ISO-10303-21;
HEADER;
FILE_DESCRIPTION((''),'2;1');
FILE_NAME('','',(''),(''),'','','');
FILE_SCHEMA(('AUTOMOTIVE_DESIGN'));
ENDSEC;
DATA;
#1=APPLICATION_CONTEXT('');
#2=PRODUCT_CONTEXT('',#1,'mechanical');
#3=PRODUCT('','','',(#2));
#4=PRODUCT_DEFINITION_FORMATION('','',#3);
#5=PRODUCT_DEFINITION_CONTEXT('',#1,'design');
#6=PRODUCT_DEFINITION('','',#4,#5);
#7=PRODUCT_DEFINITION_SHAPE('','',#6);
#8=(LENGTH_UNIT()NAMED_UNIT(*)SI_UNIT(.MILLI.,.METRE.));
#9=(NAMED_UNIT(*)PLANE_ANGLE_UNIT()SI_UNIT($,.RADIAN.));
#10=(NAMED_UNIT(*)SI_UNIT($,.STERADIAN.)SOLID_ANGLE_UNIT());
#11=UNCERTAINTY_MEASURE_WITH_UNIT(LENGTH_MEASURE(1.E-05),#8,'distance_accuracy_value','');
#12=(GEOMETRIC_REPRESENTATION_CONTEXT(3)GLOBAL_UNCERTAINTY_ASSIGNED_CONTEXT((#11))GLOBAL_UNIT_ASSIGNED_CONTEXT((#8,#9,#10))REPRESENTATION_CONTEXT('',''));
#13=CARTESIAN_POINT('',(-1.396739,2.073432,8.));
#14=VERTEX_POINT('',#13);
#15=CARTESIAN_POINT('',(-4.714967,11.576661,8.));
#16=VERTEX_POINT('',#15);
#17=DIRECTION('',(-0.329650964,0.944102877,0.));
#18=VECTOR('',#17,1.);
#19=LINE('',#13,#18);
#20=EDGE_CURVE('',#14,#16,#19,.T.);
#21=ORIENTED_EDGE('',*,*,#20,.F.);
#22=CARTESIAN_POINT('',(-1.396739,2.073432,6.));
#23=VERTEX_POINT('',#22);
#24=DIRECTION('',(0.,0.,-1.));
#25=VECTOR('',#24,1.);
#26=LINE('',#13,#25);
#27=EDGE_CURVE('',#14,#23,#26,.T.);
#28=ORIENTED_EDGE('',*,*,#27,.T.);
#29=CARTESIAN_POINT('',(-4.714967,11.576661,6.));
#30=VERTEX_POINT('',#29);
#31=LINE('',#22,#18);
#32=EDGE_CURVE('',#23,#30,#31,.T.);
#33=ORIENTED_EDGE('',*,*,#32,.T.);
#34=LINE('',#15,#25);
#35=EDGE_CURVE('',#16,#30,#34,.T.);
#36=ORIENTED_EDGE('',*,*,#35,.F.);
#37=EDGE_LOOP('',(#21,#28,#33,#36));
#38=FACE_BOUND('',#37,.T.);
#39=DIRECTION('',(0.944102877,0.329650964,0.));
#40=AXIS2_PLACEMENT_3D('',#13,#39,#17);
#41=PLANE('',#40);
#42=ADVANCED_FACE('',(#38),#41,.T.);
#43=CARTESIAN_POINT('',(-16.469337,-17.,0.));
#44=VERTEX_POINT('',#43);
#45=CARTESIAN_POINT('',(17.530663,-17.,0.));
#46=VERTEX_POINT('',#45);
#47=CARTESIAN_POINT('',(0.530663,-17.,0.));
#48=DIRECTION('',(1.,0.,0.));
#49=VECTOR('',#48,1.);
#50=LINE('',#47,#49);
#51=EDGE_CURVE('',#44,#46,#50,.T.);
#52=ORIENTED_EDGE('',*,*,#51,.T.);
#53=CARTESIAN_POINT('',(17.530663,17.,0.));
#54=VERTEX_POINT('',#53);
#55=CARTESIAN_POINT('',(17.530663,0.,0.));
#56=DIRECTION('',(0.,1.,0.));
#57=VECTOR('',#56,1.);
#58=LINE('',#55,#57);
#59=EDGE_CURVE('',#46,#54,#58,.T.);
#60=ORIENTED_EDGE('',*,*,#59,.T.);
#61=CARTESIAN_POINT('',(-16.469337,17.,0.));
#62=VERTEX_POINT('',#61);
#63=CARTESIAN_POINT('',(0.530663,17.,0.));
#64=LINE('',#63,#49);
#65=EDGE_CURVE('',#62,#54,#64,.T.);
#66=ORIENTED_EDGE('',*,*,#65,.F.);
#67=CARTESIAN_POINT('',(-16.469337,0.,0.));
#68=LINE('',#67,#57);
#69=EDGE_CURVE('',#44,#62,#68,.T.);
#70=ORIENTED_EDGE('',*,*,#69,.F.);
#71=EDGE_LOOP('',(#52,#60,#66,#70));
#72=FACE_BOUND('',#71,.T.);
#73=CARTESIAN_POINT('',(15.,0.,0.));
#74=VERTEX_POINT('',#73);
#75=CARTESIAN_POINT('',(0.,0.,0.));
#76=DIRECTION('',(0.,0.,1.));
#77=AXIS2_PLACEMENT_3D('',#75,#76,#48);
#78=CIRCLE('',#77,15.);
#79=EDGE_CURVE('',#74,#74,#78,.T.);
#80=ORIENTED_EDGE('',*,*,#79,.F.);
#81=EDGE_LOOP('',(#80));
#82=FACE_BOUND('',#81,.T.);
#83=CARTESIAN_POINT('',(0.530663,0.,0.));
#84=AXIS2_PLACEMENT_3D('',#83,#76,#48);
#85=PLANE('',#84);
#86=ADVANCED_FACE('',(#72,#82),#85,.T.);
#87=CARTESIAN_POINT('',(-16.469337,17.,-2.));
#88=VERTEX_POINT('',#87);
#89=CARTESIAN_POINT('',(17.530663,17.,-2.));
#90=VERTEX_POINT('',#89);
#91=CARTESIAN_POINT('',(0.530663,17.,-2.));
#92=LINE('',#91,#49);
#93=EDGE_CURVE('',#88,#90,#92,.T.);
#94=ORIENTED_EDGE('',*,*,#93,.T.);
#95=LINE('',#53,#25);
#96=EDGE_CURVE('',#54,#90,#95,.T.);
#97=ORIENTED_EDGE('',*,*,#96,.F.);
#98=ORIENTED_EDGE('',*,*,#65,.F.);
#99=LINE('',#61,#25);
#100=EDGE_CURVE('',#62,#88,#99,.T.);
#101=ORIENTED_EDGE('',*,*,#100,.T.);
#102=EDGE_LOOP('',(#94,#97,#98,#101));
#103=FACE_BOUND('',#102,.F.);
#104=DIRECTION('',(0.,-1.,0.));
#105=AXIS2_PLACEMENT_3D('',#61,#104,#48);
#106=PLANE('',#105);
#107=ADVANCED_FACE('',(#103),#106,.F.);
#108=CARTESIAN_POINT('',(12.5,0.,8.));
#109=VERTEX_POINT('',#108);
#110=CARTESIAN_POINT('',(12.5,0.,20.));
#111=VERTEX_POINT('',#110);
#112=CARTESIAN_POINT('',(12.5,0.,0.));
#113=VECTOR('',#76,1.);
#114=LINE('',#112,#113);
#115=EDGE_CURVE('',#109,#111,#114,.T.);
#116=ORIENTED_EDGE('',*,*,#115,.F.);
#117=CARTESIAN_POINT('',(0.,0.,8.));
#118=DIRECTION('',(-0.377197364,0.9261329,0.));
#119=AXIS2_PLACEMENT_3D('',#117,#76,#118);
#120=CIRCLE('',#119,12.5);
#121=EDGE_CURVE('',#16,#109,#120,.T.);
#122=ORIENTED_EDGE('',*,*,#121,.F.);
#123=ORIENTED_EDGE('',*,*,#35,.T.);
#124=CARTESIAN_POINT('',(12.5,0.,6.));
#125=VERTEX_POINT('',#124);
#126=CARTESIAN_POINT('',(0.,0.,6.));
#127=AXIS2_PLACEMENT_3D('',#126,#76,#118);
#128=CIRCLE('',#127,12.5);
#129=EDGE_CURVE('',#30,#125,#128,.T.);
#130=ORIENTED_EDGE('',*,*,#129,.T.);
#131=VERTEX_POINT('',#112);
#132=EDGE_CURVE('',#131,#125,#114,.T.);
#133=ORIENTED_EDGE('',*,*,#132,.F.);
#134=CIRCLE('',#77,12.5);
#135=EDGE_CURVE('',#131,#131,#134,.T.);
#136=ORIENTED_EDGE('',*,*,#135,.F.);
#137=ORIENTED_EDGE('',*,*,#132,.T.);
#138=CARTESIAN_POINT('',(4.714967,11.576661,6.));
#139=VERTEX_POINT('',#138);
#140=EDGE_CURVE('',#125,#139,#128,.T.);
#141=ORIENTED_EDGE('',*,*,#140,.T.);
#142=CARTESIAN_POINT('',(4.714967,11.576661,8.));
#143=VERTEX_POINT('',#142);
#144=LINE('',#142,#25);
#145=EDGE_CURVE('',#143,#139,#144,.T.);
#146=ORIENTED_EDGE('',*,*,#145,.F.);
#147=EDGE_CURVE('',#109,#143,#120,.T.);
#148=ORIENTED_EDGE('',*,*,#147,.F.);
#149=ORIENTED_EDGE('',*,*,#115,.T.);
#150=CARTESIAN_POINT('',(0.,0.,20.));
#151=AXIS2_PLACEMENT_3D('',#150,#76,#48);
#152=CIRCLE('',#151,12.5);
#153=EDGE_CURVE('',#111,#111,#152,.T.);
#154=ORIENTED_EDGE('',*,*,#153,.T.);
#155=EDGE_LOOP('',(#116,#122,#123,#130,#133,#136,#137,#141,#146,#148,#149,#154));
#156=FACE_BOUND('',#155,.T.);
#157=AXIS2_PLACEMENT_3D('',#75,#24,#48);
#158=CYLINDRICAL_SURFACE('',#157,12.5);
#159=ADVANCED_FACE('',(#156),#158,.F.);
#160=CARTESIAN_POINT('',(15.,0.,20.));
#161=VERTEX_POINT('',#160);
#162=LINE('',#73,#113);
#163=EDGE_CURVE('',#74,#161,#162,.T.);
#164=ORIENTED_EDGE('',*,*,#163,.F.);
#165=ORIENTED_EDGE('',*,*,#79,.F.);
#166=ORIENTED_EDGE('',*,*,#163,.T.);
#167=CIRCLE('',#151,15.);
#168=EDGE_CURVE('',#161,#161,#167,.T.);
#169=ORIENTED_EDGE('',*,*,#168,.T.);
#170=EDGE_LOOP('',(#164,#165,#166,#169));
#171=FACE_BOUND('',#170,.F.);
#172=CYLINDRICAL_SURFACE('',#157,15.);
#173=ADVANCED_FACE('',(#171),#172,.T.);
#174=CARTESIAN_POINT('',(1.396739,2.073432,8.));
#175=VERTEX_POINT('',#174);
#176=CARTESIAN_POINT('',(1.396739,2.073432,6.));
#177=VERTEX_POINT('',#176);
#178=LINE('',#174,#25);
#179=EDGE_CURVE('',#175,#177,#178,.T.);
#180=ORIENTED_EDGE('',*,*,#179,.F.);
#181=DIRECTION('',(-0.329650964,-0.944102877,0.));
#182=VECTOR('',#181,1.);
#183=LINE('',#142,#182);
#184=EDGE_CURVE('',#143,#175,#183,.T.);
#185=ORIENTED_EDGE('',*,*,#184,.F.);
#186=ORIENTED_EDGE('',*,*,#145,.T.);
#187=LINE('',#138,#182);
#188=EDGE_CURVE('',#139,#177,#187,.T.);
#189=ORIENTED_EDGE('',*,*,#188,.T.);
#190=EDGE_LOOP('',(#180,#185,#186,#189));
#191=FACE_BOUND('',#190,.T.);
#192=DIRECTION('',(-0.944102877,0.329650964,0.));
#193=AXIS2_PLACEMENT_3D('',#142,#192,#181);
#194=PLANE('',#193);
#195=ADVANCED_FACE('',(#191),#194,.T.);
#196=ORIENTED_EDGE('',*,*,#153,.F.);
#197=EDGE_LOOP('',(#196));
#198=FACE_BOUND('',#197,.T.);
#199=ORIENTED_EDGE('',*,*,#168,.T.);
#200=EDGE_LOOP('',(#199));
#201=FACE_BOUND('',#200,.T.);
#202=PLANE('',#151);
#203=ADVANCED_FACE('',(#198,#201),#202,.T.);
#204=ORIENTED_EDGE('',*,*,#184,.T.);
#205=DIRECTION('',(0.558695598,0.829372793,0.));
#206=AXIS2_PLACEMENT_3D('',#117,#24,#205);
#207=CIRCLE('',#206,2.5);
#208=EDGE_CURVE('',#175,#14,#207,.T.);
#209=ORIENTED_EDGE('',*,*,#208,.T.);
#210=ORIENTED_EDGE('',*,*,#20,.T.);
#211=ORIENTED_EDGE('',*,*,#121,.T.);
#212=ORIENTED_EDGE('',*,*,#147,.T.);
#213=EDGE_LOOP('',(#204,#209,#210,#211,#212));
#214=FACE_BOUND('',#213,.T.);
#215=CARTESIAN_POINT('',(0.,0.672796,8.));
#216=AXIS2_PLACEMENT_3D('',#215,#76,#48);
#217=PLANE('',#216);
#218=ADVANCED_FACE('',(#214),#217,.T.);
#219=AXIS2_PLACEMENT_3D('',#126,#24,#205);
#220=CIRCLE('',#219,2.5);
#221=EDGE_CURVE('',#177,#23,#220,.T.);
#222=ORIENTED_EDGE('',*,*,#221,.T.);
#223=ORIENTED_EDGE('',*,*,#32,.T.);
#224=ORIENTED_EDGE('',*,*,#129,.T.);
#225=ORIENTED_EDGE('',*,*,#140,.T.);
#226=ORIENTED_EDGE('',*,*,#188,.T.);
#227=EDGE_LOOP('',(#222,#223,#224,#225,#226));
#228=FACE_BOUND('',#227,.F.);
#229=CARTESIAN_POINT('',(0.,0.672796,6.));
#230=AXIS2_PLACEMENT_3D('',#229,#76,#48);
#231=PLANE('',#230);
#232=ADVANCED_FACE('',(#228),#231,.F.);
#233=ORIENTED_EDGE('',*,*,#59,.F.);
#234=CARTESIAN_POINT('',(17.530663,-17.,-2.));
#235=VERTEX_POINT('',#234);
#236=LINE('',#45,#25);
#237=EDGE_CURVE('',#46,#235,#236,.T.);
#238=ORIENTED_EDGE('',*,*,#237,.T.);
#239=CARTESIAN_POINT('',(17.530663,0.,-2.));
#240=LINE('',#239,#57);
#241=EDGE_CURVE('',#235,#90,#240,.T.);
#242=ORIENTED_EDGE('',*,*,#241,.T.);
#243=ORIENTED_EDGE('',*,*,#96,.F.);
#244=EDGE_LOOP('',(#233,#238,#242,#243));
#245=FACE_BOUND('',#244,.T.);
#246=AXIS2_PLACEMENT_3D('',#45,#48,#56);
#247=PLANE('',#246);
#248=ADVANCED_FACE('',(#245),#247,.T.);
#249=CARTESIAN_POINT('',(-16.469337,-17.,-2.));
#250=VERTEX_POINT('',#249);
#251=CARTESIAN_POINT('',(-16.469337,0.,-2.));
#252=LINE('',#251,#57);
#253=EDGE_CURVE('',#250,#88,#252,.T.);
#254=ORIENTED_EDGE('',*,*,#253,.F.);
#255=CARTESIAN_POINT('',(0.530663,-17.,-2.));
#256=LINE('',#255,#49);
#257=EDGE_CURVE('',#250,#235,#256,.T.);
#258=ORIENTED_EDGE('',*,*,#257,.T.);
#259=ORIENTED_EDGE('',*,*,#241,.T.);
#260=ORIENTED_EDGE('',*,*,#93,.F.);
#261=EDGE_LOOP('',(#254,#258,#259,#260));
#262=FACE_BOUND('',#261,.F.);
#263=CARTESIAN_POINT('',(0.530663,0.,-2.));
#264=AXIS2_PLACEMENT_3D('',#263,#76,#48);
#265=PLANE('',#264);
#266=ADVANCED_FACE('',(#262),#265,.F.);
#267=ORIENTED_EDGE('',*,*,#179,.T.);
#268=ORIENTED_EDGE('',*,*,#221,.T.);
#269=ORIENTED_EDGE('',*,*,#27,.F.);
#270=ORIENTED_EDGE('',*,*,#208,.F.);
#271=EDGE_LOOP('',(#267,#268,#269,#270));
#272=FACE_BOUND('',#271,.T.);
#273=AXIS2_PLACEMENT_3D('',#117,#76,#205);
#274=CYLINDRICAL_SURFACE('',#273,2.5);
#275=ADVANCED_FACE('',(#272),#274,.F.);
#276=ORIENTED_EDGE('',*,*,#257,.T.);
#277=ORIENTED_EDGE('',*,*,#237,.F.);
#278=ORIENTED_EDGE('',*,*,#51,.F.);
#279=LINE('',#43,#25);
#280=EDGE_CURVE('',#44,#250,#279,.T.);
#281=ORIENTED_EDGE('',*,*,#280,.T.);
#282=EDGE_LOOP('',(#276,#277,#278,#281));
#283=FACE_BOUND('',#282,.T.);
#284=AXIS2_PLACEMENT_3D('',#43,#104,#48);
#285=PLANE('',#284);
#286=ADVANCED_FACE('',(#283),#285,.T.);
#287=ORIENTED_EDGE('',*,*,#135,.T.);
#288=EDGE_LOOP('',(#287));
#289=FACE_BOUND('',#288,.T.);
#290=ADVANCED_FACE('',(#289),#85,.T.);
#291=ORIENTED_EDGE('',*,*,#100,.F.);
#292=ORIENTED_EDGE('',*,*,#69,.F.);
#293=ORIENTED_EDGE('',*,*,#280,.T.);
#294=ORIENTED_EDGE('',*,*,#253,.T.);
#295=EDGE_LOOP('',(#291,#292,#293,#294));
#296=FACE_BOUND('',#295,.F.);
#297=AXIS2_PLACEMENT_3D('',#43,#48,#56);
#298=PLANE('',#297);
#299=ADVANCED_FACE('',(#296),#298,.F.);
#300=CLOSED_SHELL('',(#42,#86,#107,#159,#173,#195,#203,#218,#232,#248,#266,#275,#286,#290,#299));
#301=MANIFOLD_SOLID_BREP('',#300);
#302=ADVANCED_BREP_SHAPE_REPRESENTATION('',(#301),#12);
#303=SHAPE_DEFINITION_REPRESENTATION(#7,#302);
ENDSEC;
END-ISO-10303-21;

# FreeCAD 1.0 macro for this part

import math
import FreeCAD as App
import Part
import Sketcher
Q = App.Units.Quantity


def add_polygon(sketch, points):
    """Adds a closed chain of lines whose ends are joined by coincident constraints."""
    first, n = sketch.GeometryCount, len(points)
    for a, b in zip(points, points[1:] + points[:1]):
        sketch.addGeometry(Part.LineSegment(App.Vector(*a, 0), App.Vector(*b, 0)), False)
    for i in range(n):
        sketch.addConstraint(Sketcher.Constraint("Coincident", first + i, 2, first + (i + 1) % n, 1))

doc = App.newDocument("Part")
body = doc.addObject("PartDesign::Body", "Body")

sketch1 = doc.addObject("Sketcher::SketchObject", "Sketch")
body.addObject(sketch1)
sketch1.AttachmentSupport = (doc.XY_Plane, [""])
sketch1.MapMode = "FlatFace"
sketch1.addGeometry(Part.Circle(App.Vector(0, 0, 0), App.Vector(0, 0, 1), 15), False)
sketch1.addGeometry(Part.Circle(App.Vector(0, 0, 0), App.Vector(0, 0, 1), 12.5), False)
sketch1.addConstraint(Sketcher.Constraint("Coincident", 0, 3, -1, 1))
sketch1.addConstraint(Sketcher.Constraint("Coincident", 1, 3, -1, 1))
sketch1.addConstraint(Sketcher.Constraint("Diameter", 0, Q("30 mm")))
sketch1.addConstraint(Sketcher.Constraint("Diameter", 1, Q("25 mm")))
pad1 = doc.addObject("PartDesign::Pad", "Pad")
body.addObject(pad1)
pad1.Profile = sketch1
pad1.Length = 20

sketch2 = doc.addObject("Sketcher::SketchObject", "Sketch001")
body.addObject(sketch2)
sketch2.AttachmentSupport = (doc.XY_Plane, [""])
sketch2.MapMode = "FlatFace"
sketch2.AttachmentOffset = App.Placement(App.Vector(0, 0, 8), App.Rotation())
sketch2.addGeometry(Part.ArcOfCircle(Part.Circle(App.Vector(0, 0, 0), App.Vector(0, 0, 1), 2.5), math.radians(123.965638), math.radians(416.034362)), False)
sketch2.addGeometry(Part.LineSegment(App.Vector(-1.396739, 2.073432, 0), App.Vector(-4.714967, 11.576661, 0)), False)
sketch2.addGeometry(Part.ArcOfCircle(Part.Circle(App.Vector(0, 0, 0), App.Vector(0, 0, 1), 12.5), math.radians(112.160189), math.radians(427.839811)), False)
sketch2.addGeometry(Part.LineSegment(App.Vector(4.714967, 11.576661, 0), App.Vector(1.396739, 2.073432, 0)), False)
sketch2.addConstraint(Sketcher.Constraint("Coincident", 0, 1, 1, 1))
sketch2.addConstraint(Sketcher.Constraint("Coincident", 1, 2, 2, 1))
sketch2.addConstraint(Sketcher.Constraint("Coincident", 2, 2, 3, 1))
sketch2.addConstraint(Sketcher.Constraint("Coincident", 3, 2, 0, 2))
sketch2.addConstraint(Sketcher.Constraint("Coincident", 0, 3, -1, 1))
sketch2.addConstraint(Sketcher.Constraint("Coincident", 2, 3, -1, 1))
sketch2.addConstraint(Sketcher.Constraint("Horizontal", 1, 2, 2, 2))
sketch2.addConstraint(Sketcher.Constraint("Horizontal", 0, 1, 3, 2))
sketch2.addConstraint(Sketcher.Constraint("Radius", 0, Q("2.5 mm")))
sketch2.addConstraint(Sketcher.Constraint("Radius", 2, Q("12.5 mm")))
sketch2.addConstraint(Sketcher.Constraint("DistanceX", 0, 1, -1, 1, Q("1.396739 mm")))
sketch2.addConstraint(Sketcher.Constraint("DistanceY", -1, 1, 1, 2, Q("11.576661 mm")))
pad2 = doc.addObject("PartDesign::Pad", "Pad001")
body.addObject(pad2)
pad2.Profile = sketch2
pad2.Length = 2
pad2.Reversed = True

sketch3 = doc.addObject("Sketcher::SketchObject", "Sketch002")
body.addObject(sketch3)
sketch3.AttachmentSupport = (doc.XY_Plane, [""])
sketch3.MapMode = "FlatFace"
add_polygon(sketch3, [(-16.469337, 17), (-16.469337, -17), (17.530663, -17), (17.530663, 17)])
sketch3.addConstraint(Sketcher.Constraint("Vertical", 0))
sketch3.addConstraint(Sketcher.Constraint("Horizontal", 1))
sketch3.addConstraint(Sketcher.Constraint("Vertical", 2))
sketch3.addConstraint(Sketcher.Constraint("Horizontal", 3))
sketch3.addConstraint(Sketcher.Constraint("Equal", 3, 0))
sketch3.addConstraint(Sketcher.Constraint("DistanceX", 1, 1, 1, 2, Q("34 mm")))
sketch3.addConstraint(Sketcher.Constraint("DistanceY", 0, 2, -1, 1, Q("17 mm")))
sketch3.addConstraint(Sketcher.Constraint("DistanceX", 0, 2, -1, 1, Q("16.469337 mm")))
pad3 = doc.addObject("PartDesign::Pad", "Pad002")
body.addObject(pad3)
pad3.Profile = sketch3
pad3.Length = 2
pad3.Reversed = True

doc.recompute()
